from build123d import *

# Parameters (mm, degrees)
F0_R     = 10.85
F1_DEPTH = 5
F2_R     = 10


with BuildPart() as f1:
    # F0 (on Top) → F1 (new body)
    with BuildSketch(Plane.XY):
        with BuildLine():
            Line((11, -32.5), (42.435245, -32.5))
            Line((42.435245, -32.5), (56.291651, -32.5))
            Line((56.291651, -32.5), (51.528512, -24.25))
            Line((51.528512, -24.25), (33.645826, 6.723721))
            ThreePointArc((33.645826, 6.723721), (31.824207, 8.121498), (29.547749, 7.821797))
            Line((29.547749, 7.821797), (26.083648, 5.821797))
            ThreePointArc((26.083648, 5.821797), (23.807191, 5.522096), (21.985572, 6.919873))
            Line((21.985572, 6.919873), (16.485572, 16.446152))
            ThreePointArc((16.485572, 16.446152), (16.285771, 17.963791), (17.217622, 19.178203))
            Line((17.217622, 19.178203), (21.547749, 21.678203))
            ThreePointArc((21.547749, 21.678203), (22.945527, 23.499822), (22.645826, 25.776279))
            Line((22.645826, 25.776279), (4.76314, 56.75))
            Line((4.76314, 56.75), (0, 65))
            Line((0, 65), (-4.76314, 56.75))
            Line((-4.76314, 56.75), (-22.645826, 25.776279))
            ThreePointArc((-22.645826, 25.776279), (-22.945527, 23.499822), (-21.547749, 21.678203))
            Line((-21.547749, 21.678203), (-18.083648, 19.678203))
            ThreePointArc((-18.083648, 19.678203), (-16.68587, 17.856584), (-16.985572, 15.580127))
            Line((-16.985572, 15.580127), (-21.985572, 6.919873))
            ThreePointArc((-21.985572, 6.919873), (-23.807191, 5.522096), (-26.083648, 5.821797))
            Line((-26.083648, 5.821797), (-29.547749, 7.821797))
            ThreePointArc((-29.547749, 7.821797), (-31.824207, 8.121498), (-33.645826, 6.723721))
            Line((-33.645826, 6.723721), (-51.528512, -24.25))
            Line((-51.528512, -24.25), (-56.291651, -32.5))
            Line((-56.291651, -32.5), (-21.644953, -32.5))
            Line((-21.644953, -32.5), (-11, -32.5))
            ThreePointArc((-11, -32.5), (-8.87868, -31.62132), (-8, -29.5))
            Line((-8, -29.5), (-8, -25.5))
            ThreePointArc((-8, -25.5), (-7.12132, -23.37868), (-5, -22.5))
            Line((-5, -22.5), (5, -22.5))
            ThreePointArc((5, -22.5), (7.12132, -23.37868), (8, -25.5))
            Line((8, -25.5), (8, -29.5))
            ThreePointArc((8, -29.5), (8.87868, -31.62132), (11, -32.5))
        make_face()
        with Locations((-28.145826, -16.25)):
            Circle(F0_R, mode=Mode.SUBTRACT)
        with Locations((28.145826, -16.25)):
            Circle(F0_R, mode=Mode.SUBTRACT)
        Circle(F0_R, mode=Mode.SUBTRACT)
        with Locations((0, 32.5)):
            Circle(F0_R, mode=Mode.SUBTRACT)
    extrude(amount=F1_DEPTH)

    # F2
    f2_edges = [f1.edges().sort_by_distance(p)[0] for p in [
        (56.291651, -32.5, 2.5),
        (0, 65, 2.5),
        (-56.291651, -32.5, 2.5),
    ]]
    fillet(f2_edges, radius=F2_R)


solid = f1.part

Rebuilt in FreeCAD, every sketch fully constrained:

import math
import FreeCAD as App
import Part
import Sketcher
from FreeCAD import Vector
Q = App.Units.Quantity


def edges_at(feature, points):
    """Names of the edges that pass closest to the given points."""
    edges = feature.Shape.Edges
    near = lambda p: min(range(len(edges)), key=lambda i: edges[i].distToShape(Part.Vertex(*p))[0])
    return sorted({f"Edge{near(p) + 1}" for p in points})

doc = App.newDocument("Part")
params = doc.addObject("Spreadsheet::Sheet", "Params")
for row, (alias, value) in enumerate([
    ("sketch1_radius", "3.000001 mm"),
    ("sketch1_radius2", "2 mm"),
    ("sketch1_diameter", "21.7 mm"),
    ("sketch1_width", "10 mm"),
    ("sketch1_height", "4 mm"),
    ("pad1_length", "5 mm"),
    ("fillet_radius", "10 mm"),
], start=1):
    params.set(f"A{row}", alias)
    params.set(f"B{row}", "=" + value)
    params.setAlias(f"B{row}", alias)

body = doc.addObject("PartDesign::Body", "Body")

sketch1 = body.newObject("Sketcher::SketchObject", "Sketch")
sketch1.AttachmentSupport = (doc.getObject("XY_Plane"), [""])
sketch1.MapMode = "FlatFace"
sketch1.addGeometry([
    Part.LineSegment(Vector(11, -32.5, 0), Vector(56.3, -32.5, 0)),
    Part.LineSegment(Vector(56.3, -32.5, 0), Vector(51.5, -24.2, 0)),
    Part.LineSegment(Vector(51.5, -24.2, 0), Vector(33.6, 6.7, 0)),
    Part.ArcOfCircle(Part.Circle(Vector(31, 5.2, 0), Vector(0, 0, 1), 3), math.radians(30), math.radians(120)),
    Part.LineSegment(Vector(29.5, 7.8, 0), Vector(26.1, 5.8, 0)),
    Part.ArcOfCircle(Part.Circle(Vector(24.6, 8.4, 0), Vector(0, 0, 1), 3), math.radians(-150), math.radians(-60)),
    Part.LineSegment(Vector(22, 6.9, 0), Vector(16.5, 16.4, 0)),
    Part.ArcOfCircle(Part.Circle(Vector(18.2, 17.4, 0), Vector(0, 0, 1), 2), math.radians(120), math.radians(210)),
    Part.LineSegment(Vector(17.2, 19.2, 0), Vector(21.5, 21.7, 0)),
    Part.ArcOfCircle(Part.Circle(Vector(20, 24.3, 0), Vector(0, 0, 1), 3), math.radians(-60), math.radians(30)),
    Part.LineSegment(Vector(22.6, 25.8, 0), Vector(4.8, 56.8, 0)),
    Part.LineSegment(Vector(4.8, 56.8, 0), Vector(0, 65, 0)),
    Part.LineSegment(Vector(0, 65, 0), Vector(-4.8, 56.8, 0)),
    Part.LineSegment(Vector(-4.8, 56.8, 0), Vector(-22.6, 25.8, 0)),
    Part.ArcOfCircle(Part.Circle(Vector(-20, 24.3, 0), Vector(0, 0, 1), 3), math.radians(150), math.radians(240)),
    Part.LineSegment(Vector(-21.5, 21.7, 0), Vector(-18.1, 19.7, 0)),
    Part.ArcOfCircle(Part.Circle(Vector(-19.6, 17.1, 0), Vector(0, 0, 1), 3), math.radians(-30), math.radians(60)),
    Part.LineSegment(Vector(-17, 15.6, 0), Vector(-22, 6.9, 0)),
    Part.ArcOfCircle(Part.Circle(Vector(-24.6, 8.4, 0), Vector(0, 0, 1), 3), math.radians(-120), math.radians(-30)),
    Part.LineSegment(Vector(-26.1, 5.8, 0), Vector(-29.5, 7.8, 0)),
    Part.ArcOfCircle(Part.Circle(Vector(-31, 5.2, 0), Vector(0, 0, 1), 3), math.radians(60), math.radians(150)),
    Part.LineSegment(Vector(-33.6, 6.7, 0), Vector(-51.5, -24.2, 0)),
    Part.LineSegment(Vector(-51.5, -24.2, 0), Vector(-56.3, -32.5, 0)),
    Part.LineSegment(Vector(-56.3, -32.5, 0), Vector(-11, -32.5, 0)),
    Part.ArcOfCircle(Part.Circle(Vector(-11, -29.5, 0), Vector(0, 0, 1), 3), math.radians(-90), math.radians(0)),
    Part.LineSegment(Vector(-8, -29.5, 0), Vector(-8, -25.5, 0)),
    Part.ArcOfCircle(Part.Circle(Vector(-5, -25.5, 0), Vector(0, 0, 1), 3), math.radians(90), math.radians(180)),
    Part.LineSegment(Vector(-5, -22.5, 0), Vector(5, -22.5, 0)),
    Part.ArcOfCircle(Part.Circle(Vector(5, -25.5, 0), Vector(0, 0, 1), 3), math.radians(0), math.radians(90)),
    Part.LineSegment(Vector(8, -25.5, 0), Vector(8, -29.5, 0)),
    Part.ArcOfCircle(Part.Circle(Vector(11, -29.5, 0), Vector(0, 0, 1), 3), math.radians(-180), math.radians(-90)),
    Part.Circle(Vector(-28.1, -16.2, 0), Vector(0, 0, 1), 10.8),
    Part.Circle(Vector(28.1, -16.2, 0), Vector(0, 0, 1), 10.8),
    Part.Circle(Vector(0, 0, 0), Vector(0, 0, 1), 10.8),
    Part.Circle(Vector(0, 32.5, 0), Vector(0, 0, 1), 10.8),
], False)
sketch1.addConstraint([
    Sketcher.Constraint("Coincident", 0, 2, 1, 1),
    Sketcher.Constraint("Coincident", 1, 2, 2, 1),
    Sketcher.Constraint("Tangent", 2, 2, 3, 1),
    Sketcher.Constraint("Tangent", 3, 2, 4, 1),
    Sketcher.Constraint("Tangent", 4, 2, 5, 2),
    Sketcher.Constraint("Tangent", 5, 1, 6, 1),
    Sketcher.Constraint("Tangent", 6, 2, 7, 2),
    Sketcher.Constraint("Tangent", 7, 1, 8, 1),
    Sketcher.Constraint("Tangent", 8, 2, 9, 1),
    Sketcher.Constraint("Tangent", 9, 2, 10, 1),
    Sketcher.Constraint("Coincident", 10, 2, 11, 1),
    Sketcher.Constraint("Coincident", 11, 2, 12, 1),
    Sketcher.Constraint("Coincident", 12, 2, 13, 1),
    Sketcher.Constraint("Tangent", 13, 2, 14, 1),
    Sketcher.Constraint("Tangent", 14, 2, 15, 1),
    Sketcher.Constraint("Tangent", 15, 2, 16, 2),
    Sketcher.Constraint("Tangent", 16, 1, 17, 1),
    Sketcher.Constraint("Tangent", 17, 2, 18, 2),
    Sketcher.Constraint("Tangent", 18, 1, 19, 1),
    Sketcher.Constraint("Tangent", 19, 2, 20, 1),
    Sketcher.Constraint("Tangent", 20, 2, 21, 1),
    Sketcher.Constraint("Coincident", 21, 2, 22, 1),
    Sketcher.Constraint("Coincident", 22, 2, 23, 1),
    Sketcher.Constraint("Tangent", 23, 2, 24, 1),
    Sketcher.Constraint("Tangent", 24, 2, 25, 1),
    Sketcher.Constraint("Tangent", 25, 2, 26, 2),
    Sketcher.Constraint("Tangent", 26, 1, 27, 1),
    Sketcher.Constraint("Tangent", 27, 2, 28, 2),
    Sketcher.Constraint("Tangent", 28, 1, 29, 1),
    Sketcher.Constraint("Tangent", 29, 2, 30, 1),
    Sketcher.Constraint("Tangent", 30, 2, 0, 1),
    Sketcher.Constraint("Horizontal", 0),
    Sketcher.Constraint("Horizontal", 23),
    Sketcher.Constraint("Vertical", 25),
    Sketcher.Constraint("Horizontal", 27),
    Sketcher.Constraint("Vertical", 29),
    Sketcher.Constraint("Coincident", 33, 3, -1, 1),
    Sketcher.Constraint("Equal", 3, 5),
    Sketcher.Constraint("Equal", 5, 9),
    Sketcher.Constraint("Equal", 9, 14),
    Sketcher.Constraint("Equal", 14, 16),
    Sketcher.Constraint("Equal", 14, 18),
    Sketcher.Constraint("Equal", 18, 20),
    Sketcher.Constraint("Equal", 20, 24),
    Sketcher.Constraint("Equal", 24, 26),
    Sketcher.Constraint("Equal", 26, 28),
    Sketcher.Constraint("Equal", 28, 30),
    Sketcher.Constraint("Equal", 31, 32),
    Sketcher.Constraint("Equal", 32, 33),
    Sketcher.Constraint("Equal", 33, 34),
    Sketcher.Constraint("Symmetric", 9, 3, 14, 3, -2),
    Sketcher.Constraint("Symmetric", 5, 3, 18, 3, -2),
    Sketcher.Constraint("Symmetric", 3, 3, 20, 3, -2),
    Sketcher.Constraint("Symmetric", 24, 3, 30, 3, -2),
    Sketcher.Constraint("Symmetric", 31, 3, 32, 3, -2),
    Sketcher.Constraint("Symmetric", 10, 2, 12, 2, -2),
    Sketcher.Constraint("Symmetric", 1, 2, 21, 2, -2),
    Sketcher.Constraint("PointOnObject", 34, 3, -2),
    Sketcher.Constraint("PointOnObject", 11, 2, -2),
    Sketcher.Constraint("Parallel", 1, 2),
    Sketcher.Constraint("Perpendicular", 2, 4),
    Sketcher.Constraint("Perpendicular", 4, 6),
    Sketcher.Constraint("Perpendicular", 6, 8),
    Sketcher.Constraint("Perpendicular", 8, 10),
    Sketcher.Constraint("Parallel", 10, 11),
    Sketcher.Constraint("Perpendicular", 13, 15),
    Sketcher.Constraint("Perpendicular", 15, 17),
    Sketcher.Constraint("Parallel", 21, 22),
    Sketcher.Constraint("Equal", 2, 10),
    Sketcher.Constraint("Equal", 1, 11),
    Sketcher.Constraint("Equal", 4, 15),
    Sketcher.Constraint("Radius", 3, 3.000001),
    Sketcher.Constraint("Radius", 7, 2.0),
    Sketcher.Constraint("Diameter", 31, 21.7),
    Sketcher.Constraint("DistanceX", 27, 1, 27, 2, 10.0),
    Sketcher.Constraint("DistanceY", 25, 1, 25, 2, 4.0),
    Sketcher.Constraint("Angle", 1, Q("119.999996 deg")),
    Sketcher.Constraint("Distance", 4, 3.999999),
    Sketcher.Constraint("Distance", 6, 11.0),
    Sketcher.Constraint("DistanceY", -1, 1, 11, 2, 65.0),
    Sketcher.Constraint("DistanceY", 1, 2, 32, 3, 8.0),
    Sketcher.Constraint("DistanceY", 24, 3, -1, 1, 29.499999),
    Sketcher.Constraint("DistanceY", -1, 1, 34, 3, 32.5),
    Sketcher.Constraint("DistanceX", 32, 3, 2, 2, 5.5),
    Sketcher.Constraint("DistanceY", 31, 3, -1, 1, 16.25),
])
sketch1.setExpression("Constraints[71]", "Params.sketch1_radius")
sketch1.setExpression("Constraints[72]", "Params.sketch1_radius2")
sketch1.setExpression("Constraints[73]", "Params.sketch1_diameter")
sketch1.setExpression("Constraints[74]", "Params.sketch1_width")
sketch1.setExpression("Constraints[75]", "Params.sketch1_height")
pad1 = body.newObject("PartDesign::Pad", "Pad")
pad1.Profile = sketch1
pad1.setExpression("Length", "Params.pad1_length")
doc.recompute()

fillet = body.newObject("PartDesign::Fillet", "Fillet")
fillet.Base = (pad1, edges_at(pad1, [(56.292, -32.5, 2.5), (0, 65, 2.5), (-56.292, -32.5, 2.5)]))
fillet.setExpression("Radius", "Params.fillet_radius")

doc.recompute()
